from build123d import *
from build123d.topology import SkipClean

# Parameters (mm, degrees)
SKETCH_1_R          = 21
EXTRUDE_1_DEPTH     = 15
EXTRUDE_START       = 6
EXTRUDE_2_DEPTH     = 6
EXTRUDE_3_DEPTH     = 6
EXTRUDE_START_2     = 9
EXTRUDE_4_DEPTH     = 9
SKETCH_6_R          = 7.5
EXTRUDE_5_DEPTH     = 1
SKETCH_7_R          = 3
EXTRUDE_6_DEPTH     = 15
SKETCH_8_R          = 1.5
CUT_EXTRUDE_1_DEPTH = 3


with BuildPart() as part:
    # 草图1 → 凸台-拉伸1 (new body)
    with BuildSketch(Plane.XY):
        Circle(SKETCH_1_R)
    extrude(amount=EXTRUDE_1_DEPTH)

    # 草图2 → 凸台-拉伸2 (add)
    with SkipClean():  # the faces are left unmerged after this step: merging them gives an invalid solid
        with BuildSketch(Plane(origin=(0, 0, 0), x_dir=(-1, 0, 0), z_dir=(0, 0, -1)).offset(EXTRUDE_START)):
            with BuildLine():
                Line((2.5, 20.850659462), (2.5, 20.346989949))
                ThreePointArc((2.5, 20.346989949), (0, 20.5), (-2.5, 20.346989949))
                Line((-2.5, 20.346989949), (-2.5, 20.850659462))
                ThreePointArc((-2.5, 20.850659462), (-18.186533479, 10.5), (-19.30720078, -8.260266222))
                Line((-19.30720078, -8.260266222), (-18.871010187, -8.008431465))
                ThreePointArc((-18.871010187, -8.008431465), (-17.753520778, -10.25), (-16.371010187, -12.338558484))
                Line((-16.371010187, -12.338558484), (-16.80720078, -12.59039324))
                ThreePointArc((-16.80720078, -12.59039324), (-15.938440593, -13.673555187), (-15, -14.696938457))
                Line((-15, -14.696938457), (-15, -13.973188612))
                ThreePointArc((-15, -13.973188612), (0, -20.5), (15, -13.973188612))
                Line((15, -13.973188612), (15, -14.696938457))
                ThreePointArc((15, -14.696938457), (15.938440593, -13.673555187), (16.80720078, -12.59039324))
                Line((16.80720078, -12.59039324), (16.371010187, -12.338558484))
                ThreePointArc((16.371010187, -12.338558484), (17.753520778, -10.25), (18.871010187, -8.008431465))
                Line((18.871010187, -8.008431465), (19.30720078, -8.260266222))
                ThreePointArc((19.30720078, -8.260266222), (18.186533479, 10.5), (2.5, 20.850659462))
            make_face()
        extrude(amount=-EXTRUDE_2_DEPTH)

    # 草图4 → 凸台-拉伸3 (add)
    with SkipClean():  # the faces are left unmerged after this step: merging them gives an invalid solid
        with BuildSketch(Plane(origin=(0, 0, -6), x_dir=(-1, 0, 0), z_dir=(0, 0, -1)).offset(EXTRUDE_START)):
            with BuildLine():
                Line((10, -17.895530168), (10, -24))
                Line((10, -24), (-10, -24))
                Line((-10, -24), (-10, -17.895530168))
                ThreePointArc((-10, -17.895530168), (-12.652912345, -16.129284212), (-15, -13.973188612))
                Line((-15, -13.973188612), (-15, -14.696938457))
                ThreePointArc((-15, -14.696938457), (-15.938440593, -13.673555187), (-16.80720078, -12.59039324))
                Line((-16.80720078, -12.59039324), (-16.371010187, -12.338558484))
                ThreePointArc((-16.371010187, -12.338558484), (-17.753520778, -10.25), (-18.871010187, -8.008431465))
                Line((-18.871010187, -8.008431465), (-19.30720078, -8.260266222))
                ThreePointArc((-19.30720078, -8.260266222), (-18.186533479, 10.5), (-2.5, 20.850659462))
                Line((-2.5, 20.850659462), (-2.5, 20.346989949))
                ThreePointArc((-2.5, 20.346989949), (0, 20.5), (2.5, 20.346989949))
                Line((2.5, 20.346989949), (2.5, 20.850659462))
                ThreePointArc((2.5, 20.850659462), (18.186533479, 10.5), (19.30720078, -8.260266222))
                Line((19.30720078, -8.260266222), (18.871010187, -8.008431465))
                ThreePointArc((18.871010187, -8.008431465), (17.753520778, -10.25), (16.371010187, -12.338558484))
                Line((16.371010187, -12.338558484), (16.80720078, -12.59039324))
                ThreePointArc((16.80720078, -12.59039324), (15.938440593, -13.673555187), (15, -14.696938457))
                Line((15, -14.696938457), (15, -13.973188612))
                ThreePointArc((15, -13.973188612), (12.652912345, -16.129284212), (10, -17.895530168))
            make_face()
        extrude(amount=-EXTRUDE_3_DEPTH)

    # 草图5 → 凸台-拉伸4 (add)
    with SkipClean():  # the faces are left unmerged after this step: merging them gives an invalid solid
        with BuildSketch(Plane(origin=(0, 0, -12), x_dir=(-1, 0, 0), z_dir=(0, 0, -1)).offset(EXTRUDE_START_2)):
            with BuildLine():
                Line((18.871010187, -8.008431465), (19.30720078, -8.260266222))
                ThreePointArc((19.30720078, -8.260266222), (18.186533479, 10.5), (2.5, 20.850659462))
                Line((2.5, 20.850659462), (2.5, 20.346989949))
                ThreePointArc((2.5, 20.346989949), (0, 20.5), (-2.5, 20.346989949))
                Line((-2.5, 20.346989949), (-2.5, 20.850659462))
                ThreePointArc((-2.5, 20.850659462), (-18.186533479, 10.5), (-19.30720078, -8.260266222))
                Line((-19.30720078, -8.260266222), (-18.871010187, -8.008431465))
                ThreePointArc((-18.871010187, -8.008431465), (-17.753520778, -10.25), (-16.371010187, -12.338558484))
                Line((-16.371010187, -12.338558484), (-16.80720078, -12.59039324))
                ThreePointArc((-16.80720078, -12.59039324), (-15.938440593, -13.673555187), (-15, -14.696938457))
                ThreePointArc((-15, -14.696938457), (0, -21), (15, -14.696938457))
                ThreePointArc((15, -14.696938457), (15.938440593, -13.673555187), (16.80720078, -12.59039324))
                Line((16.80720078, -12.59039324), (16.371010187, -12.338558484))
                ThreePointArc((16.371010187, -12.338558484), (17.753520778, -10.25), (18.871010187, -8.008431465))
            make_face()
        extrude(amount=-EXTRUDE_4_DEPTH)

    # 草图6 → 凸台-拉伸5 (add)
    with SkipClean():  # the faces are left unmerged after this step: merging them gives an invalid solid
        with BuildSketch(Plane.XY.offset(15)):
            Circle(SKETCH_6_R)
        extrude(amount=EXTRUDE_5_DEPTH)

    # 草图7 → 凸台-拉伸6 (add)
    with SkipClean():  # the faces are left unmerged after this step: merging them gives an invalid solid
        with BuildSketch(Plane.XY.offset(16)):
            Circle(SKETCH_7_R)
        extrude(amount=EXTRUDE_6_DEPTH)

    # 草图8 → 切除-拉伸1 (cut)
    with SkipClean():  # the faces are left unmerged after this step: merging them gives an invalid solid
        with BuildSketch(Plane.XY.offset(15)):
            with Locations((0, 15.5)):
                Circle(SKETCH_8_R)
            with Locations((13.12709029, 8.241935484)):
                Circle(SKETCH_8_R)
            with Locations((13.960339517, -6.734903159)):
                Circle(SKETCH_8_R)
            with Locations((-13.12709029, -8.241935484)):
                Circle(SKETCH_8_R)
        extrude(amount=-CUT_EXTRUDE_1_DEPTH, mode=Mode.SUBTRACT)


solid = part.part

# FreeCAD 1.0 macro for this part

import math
import FreeCAD as App
import Part
import Sketcher
Q = App.Units.Quantity

doc = App.newDocument("Part")
body = doc.addObject("PartDesign::Body", "Body")

sketch1 = body.newObject("Sketcher::SketchObject", "Sketch")
sketch1.AttachmentSupport = (doc.getObject("XY_Plane"), [""])
sketch1.MapMode = "FlatFace"
sketch1.addGeometry(Part.Circle(App.Vector(0, 0, 0), App.Vector(0, 0, 1), 21), False)
sketch1.addConstraint([
    Sketcher.Constraint("Coincident", 0, 3, -1, 1),
    Sketcher.Constraint("Diameter", 0, 42.0),
])
pad1 = body.newObject("PartDesign::Pad", "Pad")
pad1.Profile = sketch1
pad1.Length = 15

sketch2 = body.newObject("Sketcher::SketchObject", "Sketch001")
sketch2.AttachmentSupport = (doc.getObject("XY_Plane"), [""])
sketch2.MapMode = "FlatFace"
sketch2.AttachmentOffset = App.Placement(App.Vector(0, 0, -6), App.Rotation())
sketch2.addGeometry([
    Part.LineSegment(App.Vector(-2.5, 20.9, 0), App.Vector(-2.5, 20.3, 0)),
    Part.ArcOfCircle(Part.Circle(App.Vector(0, 0, 0), App.Vector(0, 0, 1), 20.5), math.radians(83), math.radians(97)),
    Part.LineSegment(App.Vector(2.5, 20.3, 0), App.Vector(2.5, 20.9, 0)),
    Part.ArcOfCircle(Part.Circle(App.Vector(0, 0, 0), App.Vector(0, 0, 1), 21), math.radians(-23), math.radians(83)),
    Part.LineSegment(App.Vector(19.3, -8.3, 0), App.Vector(18.9, -8, 0)),
    Part.ArcOfCircle(Part.Circle(App.Vector(0, 0, 0), App.Vector(0, 0, 1), 20.5), math.radians(-37), math.radians(-23)),
    Part.LineSegment(App.Vector(16.4, -12.3, 0), App.Vector(16.8, -12.6, 0)),
    Part.ArcOfCircle(Part.Circle(App.Vector(0, 0, 0), App.Vector(0, 0, 1), 21), math.radians(-44.42), math.radians(-36.84)),
    Part.LineSegment(App.Vector(15, -14.7, 0), App.Vector(15, -14, 0)),
    Part.ArcOfCircle(Part.Circle(App.Vector(0, 0, 0), App.Vector(0, 0, 1), 20.5), math.radians(-137), math.radians(-43)),
    Part.LineSegment(App.Vector(-15, -14, 0), App.Vector(-15, -14.7, 0)),
    Part.ArcOfCircle(Part.Circle(App.Vector(0, 0, 0), App.Vector(0, 0, 1), 21), math.radians(-143.16), math.radians(-135.58)),
    Part.LineSegment(App.Vector(-16.8, -12.6, 0), App.Vector(-16.4, -12.3, 0)),
    Part.ArcOfCircle(Part.Circle(App.Vector(0, 0, 0), App.Vector(0, 0, 1), 20.5), math.radians(-157), math.radians(-143)),
    Part.LineSegment(App.Vector(-18.9, -8, 0), App.Vector(-19.3, -8.3, 0)),
    Part.ArcOfCircle(Part.Circle(App.Vector(0, 0, 0), App.Vector(0, 0, 1), 21), math.radians(97), math.radians(203)),
], False)
sketch2.addConstraint([
    Sketcher.Constraint("Coincident", 0, 2, 1, 2),
    Sketcher.Constraint("Coincident", 1, 1, 2, 1),
    Sketcher.Constraint("Coincident", 2, 2, 3, 2),
    Sketcher.Constraint("Coincident", 3, 1, 4, 1),
    Sketcher.Constraint("Coincident", 4, 2, 5, 2),
    Sketcher.Constraint("Coincident", 5, 1, 6, 1),
    Sketcher.Constraint("Coincident", 6, 2, 7, 2),
    Sketcher.Constraint("Coincident", 7, 1, 8, 1),
    Sketcher.Constraint("Coincident", 8, 2, 9, 2),
    Sketcher.Constraint("Coincident", 9, 1, 10, 1),
    Sketcher.Constraint("Coincident", 10, 2, 11, 2),
    Sketcher.Constraint("Coincident", 11, 1, 12, 1),
    Sketcher.Constraint("Coincident", 12, 2, 13, 2),
    Sketcher.Constraint("Coincident", 13, 1, 14, 1),
    Sketcher.Constraint("Coincident", 14, 2, 15, 2),
    Sketcher.Constraint("Coincident", 15, 1, 0, 1),
    Sketcher.Constraint("Vertical", 0),
    Sketcher.Constraint("Vertical", 2),
    Sketcher.Constraint("Vertical", 8),
    Sketcher.Constraint("Vertical", 10),
    Sketcher.Constraint("Coincident", 1, 3, -1, 1),
    Sketcher.Constraint("Coincident", 3, 3, -1, 1),
    Sketcher.Constraint("Coincident", 5, 3, -1, 1),
    Sketcher.Constraint("Coincident", 7, 3, -1, 1),
    Sketcher.Constraint("Coincident", 9, 3, -1, 1),
    Sketcher.Constraint("Coincident", 11, 3, -1, 1),
    Sketcher.Constraint("Coincident", 13, 3, -1, 1),
    Sketcher.Constraint("Coincident", 15, 3, -1, 1),
    Sketcher.Constraint("Equal", 1, 5),
    Sketcher.Constraint("Equal", 3, 7),
    Sketcher.Constraint("Equal", 5, 9),
    Sketcher.Constraint("Equal", 7, 11),
    Sketcher.Constraint("Equal", 9, 13),
    Sketcher.Constraint("Equal", 11, 15),
    Sketcher.Constraint("Parallel", 4, 6),
    Sketcher.Constraint("Parallel", 12, 14),
    Sketcher.Constraint("Horizontal", 0, 2, 1, 1),
    Sketcher.Constraint("Horizontal", 8, 2, 9, 1),
    Sketcher.Constraint("Horizontal", 6, 2, 11, 1),
    Sketcher.Constraint("Horizontal", 5, 1, 12, 2),
    Sketcher.Constraint("Horizontal", 4, 2, 13, 1),
    Sketcher.Constraint("Equal", 4, 6),
    Sketcher.Constraint("Radius", 3, 21.0),
    Sketcher.Constraint("Radius", 1, 20.5),
    Sketcher.Constraint("Angle", 4, Q("150 deg")),
    Sketcher.Constraint("DistanceX", -1, 1, 7, 1, 15.0),
    Sketcher.Constraint("DistanceX", 0, 2, 1, 1, 5.0),
    Sketcher.Constraint("DistanceX", 5, 1, 4, 2, 2.5),
])
pad2 = body.newObject("PartDesign::Pad", "Pad001")
pad2.Profile = sketch2
pad2.Length = 6

sketch3 = body.newObject("Sketcher::SketchObject", "Sketch002")
sketch3.AttachmentSupport = (doc.getObject("XY_Plane"), [""])
sketch3.MapMode = "FlatFace"
sketch3.AttachmentOffset = App.Placement(App.Vector(0, 0, -12), App.Rotation())
sketch3.addGeometry([
    Part.LineSegment(App.Vector(-10, -24, 0), App.Vector(-10, -17.9, 0)),
    Part.ArcOfCircle(Part.Circle(App.Vector(0, 0, 0), App.Vector(0, 0, 1), 20.5), math.radians(-137.03), math.radians(-119.2)),
    Part.LineSegment(App.Vector(-15, -14, 0), App.Vector(-15, -14.7, 0)),
    Part.ArcOfCircle(Part.Circle(App.Vector(0, 0, 0), App.Vector(0, 0, 1), 21), math.radians(-143.16), math.radians(-135.58)),
    Part.LineSegment(App.Vector(-16.8, -12.6, 0), App.Vector(-16.4, -12.3, 0)),
    Part.ArcOfCircle(Part.Circle(App.Vector(0, 0, 0), App.Vector(0, 0, 1), 20.5), math.radians(-157), math.radians(-143)),
    Part.LineSegment(App.Vector(-18.9, -8, 0), App.Vector(-19.3, -8.3, 0)),
    Part.ArcOfCircle(Part.Circle(App.Vector(0, 0, 0), App.Vector(0, 0, 1), 21), math.radians(97), math.radians(203)),
    Part.LineSegment(App.Vector(-2.5, 20.9, 0), App.Vector(-2.5, 20.3, 0)),
    Part.ArcOfCircle(Part.Circle(App.Vector(0, 0, 0), App.Vector(0, 0, 1), 20.5), math.radians(83), math.radians(97)),
    Part.LineSegment(App.Vector(2.5, 20.3, 0), App.Vector(2.5, 20.9, 0)),
    Part.ArcOfCircle(Part.Circle(App.Vector(0, 0, 0), App.Vector(0, 0, 1), 21), math.radians(-23), math.radians(83)),
    Part.LineSegment(App.Vector(19.3, -8.3, 0), App.Vector(18.9, -8, 0)),
    Part.ArcOfCircle(Part.Circle(App.Vector(0, 0, 0), App.Vector(0, 0, 1), 20.5), math.radians(-37), math.radians(-23)),
    Part.LineSegment(App.Vector(16.4, -12.3, 0), App.Vector(16.8, -12.6, 0)),
    Part.ArcOfCircle(Part.Circle(App.Vector(0, 0, 0), App.Vector(0, 0, 1), 21), math.radians(-44.42), math.radians(-36.84)),
    Part.LineSegment(App.Vector(15, -14.7, 0), App.Vector(15, -14, 0)),
    Part.ArcOfCircle(Part.Circle(App.Vector(0, 0, 0), App.Vector(0, 0, 1), 20.5), math.radians(-60.8), math.radians(-42.97)),
    Part.LineSegment(App.Vector(10, -17.9, 0), App.Vector(10, -24, 0)),
    Part.LineSegment(App.Vector(10, -24, 0), App.Vector(-10, -24, 0)),
], False)
sketch3.addConstraint([
    Sketcher.Constraint("Coincident", 0, 2, 1, 2),
    Sketcher.Constraint("Coincident", 1, 1, 2, 1),
    Sketcher.Constraint("Coincident", 2, 2, 3, 2),
    Sketcher.Constraint("Coincident", 3, 1, 4, 1),
    Sketcher.Constraint("Coincident", 4, 2, 5, 2),
    Sketcher.Constraint("Coincident", 5, 1, 6, 1),
    Sketcher.Constraint("Coincident", 6, 2, 7, 2),
    Sketcher.Constraint("Coincident", 7, 1, 8, 1),
    Sketcher.Constraint("Coincident", 8, 2, 9, 2),
    Sketcher.Constraint("Coincident", 9, 1, 10, 1),
    Sketcher.Constraint("Coincident", 10, 2, 11, 2),
    Sketcher.Constraint("Coincident", 11, 1, 12, 1),
    Sketcher.Constraint("Coincident", 12, 2, 13, 2),
    Sketcher.Constraint("Coincident", 13, 1, 14, 1),
    Sketcher.Constraint("Coincident", 14, 2, 15, 2),
    Sketcher.Constraint("Coincident", 15, 1, 16, 1),
    Sketcher.Constraint("Coincident", 16, 2, 17, 2),
    Sketcher.Constraint("Coincident", 17, 1, 18, 1),
    Sketcher.Constraint("Coincident", 18, 2, 19, 1),
    Sketcher.Constraint("Coincident", 19, 2, 0, 1),
    Sketcher.Constraint("Vertical", 0),
    Sketcher.Constraint("Vertical", 2),
    Sketcher.Constraint("Vertical", 8),
    Sketcher.Constraint("Vertical", 10),
    Sketcher.Constraint("Vertical", 16),
    Sketcher.Constraint("Vertical", 18),
    Sketcher.Constraint("Horizontal", 19),
    Sketcher.Constraint("Coincident", 1, 3, -1, 1),
    Sketcher.Constraint("Coincident", 3, 3, -1, 1),
    Sketcher.Constraint("Coincident", 5, 3, -1, 1),
    Sketcher.Constraint("Coincident", 7, 3, -1, 1),
    Sketcher.Constraint("Coincident", 9, 3, -1, 1),
    Sketcher.Constraint("Coincident", 11, 3, -1, 1),
    Sketcher.Constraint("Coincident", 13, 3, -1, 1),
    Sketcher.Constraint("Coincident", 15, 3, -1, 1),
    Sketcher.Constraint("Coincident", 17, 3, -1, 1),
    Sketcher.Constraint("Equal", 1, 5),
    Sketcher.Constraint("Equal", 3, 7),
    Sketcher.Constraint("Equal", 5, 9),
    Sketcher.Constraint("Equal", 7, 11),
    Sketcher.Constraint("Equal", 9, 13),
    Sketcher.Constraint("Equal", 11, 15),
    Sketcher.Constraint("Equal", 13, 17),
    Sketcher.Constraint("Parallel", 4, 6),
    Sketcher.Constraint("Parallel", 12, 14),
    Sketcher.Constraint("Horizontal", 8, 2, 9, 1),
    Sketcher.Constraint("Horizontal", 6, 2, 11, 1),
    Sketcher.Constraint("Horizontal", 5, 1, 12, 2),
    Sketcher.Constraint("Horizontal", 4, 2, 13, 1),
    Sketcher.Constraint("Horizontal", 2, 2, 15, 1),
    Sketcher.Constraint("Horizontal", 0, 2, 17, 1),
    Sketcher.Constraint("Equal", 4, 6),
    Sketcher.Constraint("Radius", 3, 21.0),
    Sketcher.Constraint("Radius", 1, 20.5),
    Sketcher.Constraint("DistanceX", 19, 2, 19, 1, 20.0),
    Sketcher.Constraint("Angle", 4, Q("30 deg")),
    Sketcher.Constraint("DistanceX", 1, 1, -1, 1, 15.0),
    Sketcher.Constraint("DistanceY", 18, 2, -1, 1, 24.0),
    Sketcher.Constraint("DistanceX", 8, 2, 9, 1, 5.0),
    Sketcher.Constraint("DistanceX", 5, 1, 4, 2, 2.5),
])
pad3 = body.newObject("PartDesign::Pad", "Pad002")
pad3.Profile = sketch3
pad3.Length = 6

sketch4 = body.newObject("Sketcher::SketchObject", "Sketch003")
sketch4.AttachmentSupport = (doc.getObject("XY_Plane"), [""])
sketch4.MapMode = "FlatFace"
sketch4.AttachmentOffset = App.Placement(App.Vector(0, 0, -21), App.Rotation())
sketch4.addGeometry([
    Part.LineSegment(App.Vector(-18.9, -8, 0), App.Vector(-19.3, -8.3, 0)),
    Part.ArcOfCircle(Part.Circle(App.Vector(0, 0, 0), App.Vector(0, 0, 1), 21), math.radians(97), math.radians(203)),
    Part.LineSegment(App.Vector(-2.5, 20.9, 0), App.Vector(-2.5, 20.3, 0)),
    Part.ArcOfCircle(Part.Circle(App.Vector(0, 0, 0), App.Vector(0, 0, 1), 20.5), math.radians(83), math.radians(97)),
    Part.LineSegment(App.Vector(2.5, 20.3, 0), App.Vector(2.5, 20.9, 0)),
    Part.ArcOfCircle(Part.Circle(App.Vector(0, 0, 0), App.Vector(0, 0, 1), 21), math.radians(-23), math.radians(83)),
    Part.LineSegment(App.Vector(19.3, -8.3, 0), App.Vector(18.9, -8, 0)),
    Part.ArcOfCircle(Part.Circle(App.Vector(0, 0, 0), App.Vector(0, 0, 1), 20.5), math.radians(-37), math.radians(-23)),
    Part.LineSegment(App.Vector(16.4, -12.3, 0), App.Vector(16.8, -12.6, 0)),
    Part.ArcOfCircle(Part.Circle(App.Vector(0, 0, 0), App.Vector(0, 0, 1), 21), math.radians(-44.42), math.radians(-36.84)),
    Part.ArcOfCircle(Part.Circle(App.Vector(0, 0, 0), App.Vector(0, 0, 1), 21), math.radians(-136), math.radians(-44)),
    Part.ArcOfCircle(Part.Circle(App.Vector(0, 0, 0), App.Vector(0, 0, 1), 21), math.radians(-143.16), math.radians(-135.58)),
    Part.LineSegment(App.Vector(-16.8, -12.6, 0), App.Vector(-16.4, -12.3, 0)),
    Part.ArcOfCircle(Part.Circle(App.Vector(0, 0, 0), App.Vector(0, 0, 1), 20.5), math.radians(-157), math.radians(-143)),
], False)
sketch4.addConstraint([
    Sketcher.Constraint("Coincident", 0, 2, 1, 2),
    Sketcher.Constraint("Coincident", 1, 1, 2, 1),
    Sketcher.Constraint("Coincident", 2, 2, 3, 2),
    Sketcher.Constraint("Coincident", 3, 1, 4, 1),
    Sketcher.Constraint("Coincident", 4, 2, 5, 2),
    Sketcher.Constraint("Coincident", 5, 1, 6, 1),
    Sketcher.Constraint("Coincident", 6, 2, 7, 2),
    Sketcher.Constraint("Coincident", 7, 1, 8, 1),
    Sketcher.Constraint("Coincident", 8, 2, 9, 2),
    Sketcher.Constraint("Tangent", 9, 1, 10, 2),
    Sketcher.Constraint("Tangent", 10, 1, 11, 2),
    Sketcher.Constraint("Coincident", 11, 1, 12, 1),
    Sketcher.Constraint("Coincident", 12, 2, 13, 2),
    Sketcher.Constraint("Coincident", 13, 1, 0, 1),
    Sketcher.Constraint("Vertical", 2),
    Sketcher.Constraint("Vertical", 4),
    Sketcher.Constraint("Coincident", 1, 3, -1, 1),
    Sketcher.Constraint("Coincident", 3, 3, -1, 1),
    Sketcher.Constraint("Coincident", 5, 3, -1, 1),
    Sketcher.Constraint("Coincident", 7, 3, -1, 1),
    Sketcher.Constraint("Coincident", 9, 3, -1, 1),
    Sketcher.Constraint("Coincident", 11, 3, -1, 1),
    Sketcher.Constraint("Coincident", 13, 3, -1, 1),
    Sketcher.Constraint("Equal", 1, 5),
    Sketcher.Constraint("Equal", 3, 7),
    Sketcher.Constraint("Equal", 5, 9),
    Sketcher.Constraint("Equal", 7, 13),
    Sketcher.Constraint("Parallel", 6, 8),
    Sketcher.Constraint("Parallel", 0, 12),
    Sketcher.Constraint("Horizontal", 2, 2, 3, 1),
    Sketcher.Constraint("Horizontal", 0, 2, 5, 1),
    Sketcher.Constraint("Horizontal", 9, 1, 10, 1),
    Sketcher.Constraint("Horizontal", 8, 2, 11, 1),
    Sketcher.Constraint("Horizontal", 7, 1, 12, 2),
    Sketcher.Constraint("Equal", 6, 8),
    Sketcher.Constraint("Radius", 1, 21.0),
    Sketcher.Constraint("Radius", 3, 20.5),
    Sketcher.Constraint("Angle", 0, Q("-150 deg")),
    Sketcher.Constraint("DistanceX", -1, 1, 9, 1, 15.0),
    Sketcher.Constraint("DistanceX", 2, 2, 3, 1, 5.0),
    Sketcher.Constraint("DistanceX", 7, 1, 6, 2, 2.5),
])
pad4 = body.newObject("PartDesign::Pad", "Pad003")
pad4.Profile = sketch4
pad4.Length = 9

sketch5 = body.newObject("Sketcher::SketchObject", "Sketch004")
sketch5.AttachmentSupport = (doc.getObject("XY_Plane"), [""])
sketch5.MapMode = "FlatFace"
sketch5.AttachmentOffset = App.Placement(App.Vector(0, 0, 15), App.Rotation())
sketch5.addGeometry(Part.Circle(App.Vector(0, 0, 0), App.Vector(0, 0, 1), 8), False)
sketch5.addConstraint([
    Sketcher.Constraint("Coincident", 0, 3, -1, 1),
    Sketcher.Constraint("Diameter", 0, 15.0),
])
pad5 = body.newObject("PartDesign::Pad", "Pad004")
pad5.Profile = sketch5
pad5.Length = 1

sketch6 = body.newObject("Sketcher::SketchObject", "Sketch005")
sketch6.AttachmentSupport = (doc.getObject("XY_Plane"), [""])
sketch6.MapMode = "FlatFace"
sketch6.AttachmentOffset = App.Placement(App.Vector(0, 0, 16), App.Rotation())
sketch6.addGeometry(Part.Circle(App.Vector(0, 0, 0), App.Vector(0, 0, 1), 3), False)
sketch6.addConstraint([
    Sketcher.Constraint("Coincident", 0, 3, -1, 1),
    Sketcher.Constraint("Diameter", 0, 6.0),
])
pad6 = body.newObject("PartDesign::Pad", "Pad005")
pad6.Profile = sketch6
pad6.Length = 15

sketch7 = body.newObject("Sketcher::SketchObject", "Sketch006")
sketch7.AttachmentSupport = (doc.getObject("XY_Plane"), [""])
sketch7.MapMode = "FlatFace"
sketch7.AttachmentOffset = App.Placement(App.Vector(0, 0, 15), App.Rotation())
sketch7.addGeometry([
    Part.Circle(App.Vector(0, 15.5, 0), App.Vector(0, 0, 1), 1.5),
    Part.Circle(App.Vector(13.1, 8.2, 0), App.Vector(0, 0, 1), 1.5),
    Part.Circle(App.Vector(14, -6.7, 0), App.Vector(0, 0, 1), 1.5),
    Part.Circle(App.Vector(-13.1, -8.2, 0), App.Vector(0, 0, 1), 1.5),
], False)
sketch7.addConstraint([
    Sketcher.Constraint("Equal", 0, 1),
    Sketcher.Constraint("Equal", 1, 2),
    Sketcher.Constraint("Equal", 2, 3),
    Sketcher.Constraint("Symmetric", 1, 3, 3, 3, -1, 1),
    Sketcher.Constraint("PointOnObject", 0, 3, -2),
    Sketcher.Constraint("Diameter", 0, 3.0),
    Sketcher.Constraint("DistanceY", -1, 1, 0, 3, 15.5),
    Sketcher.Constraint("DistanceX", -1, 1, 1, 3, 13.12709),
    Sketcher.Constraint("DistanceX", -1, 1, 2, 3, 13.96034),
    Sketcher.Constraint("DistanceY", 2, 3, 1, 3, 14.976839),
    Sketcher.Constraint("DistanceY", 3, 3, 1, 3, 16.483871),
])
pocket1 = body.newObject("PartDesign::Pocket", "Pocket")
pocket1.Profile = sketch7
pocket1.Length = 3

doc.recompute()
